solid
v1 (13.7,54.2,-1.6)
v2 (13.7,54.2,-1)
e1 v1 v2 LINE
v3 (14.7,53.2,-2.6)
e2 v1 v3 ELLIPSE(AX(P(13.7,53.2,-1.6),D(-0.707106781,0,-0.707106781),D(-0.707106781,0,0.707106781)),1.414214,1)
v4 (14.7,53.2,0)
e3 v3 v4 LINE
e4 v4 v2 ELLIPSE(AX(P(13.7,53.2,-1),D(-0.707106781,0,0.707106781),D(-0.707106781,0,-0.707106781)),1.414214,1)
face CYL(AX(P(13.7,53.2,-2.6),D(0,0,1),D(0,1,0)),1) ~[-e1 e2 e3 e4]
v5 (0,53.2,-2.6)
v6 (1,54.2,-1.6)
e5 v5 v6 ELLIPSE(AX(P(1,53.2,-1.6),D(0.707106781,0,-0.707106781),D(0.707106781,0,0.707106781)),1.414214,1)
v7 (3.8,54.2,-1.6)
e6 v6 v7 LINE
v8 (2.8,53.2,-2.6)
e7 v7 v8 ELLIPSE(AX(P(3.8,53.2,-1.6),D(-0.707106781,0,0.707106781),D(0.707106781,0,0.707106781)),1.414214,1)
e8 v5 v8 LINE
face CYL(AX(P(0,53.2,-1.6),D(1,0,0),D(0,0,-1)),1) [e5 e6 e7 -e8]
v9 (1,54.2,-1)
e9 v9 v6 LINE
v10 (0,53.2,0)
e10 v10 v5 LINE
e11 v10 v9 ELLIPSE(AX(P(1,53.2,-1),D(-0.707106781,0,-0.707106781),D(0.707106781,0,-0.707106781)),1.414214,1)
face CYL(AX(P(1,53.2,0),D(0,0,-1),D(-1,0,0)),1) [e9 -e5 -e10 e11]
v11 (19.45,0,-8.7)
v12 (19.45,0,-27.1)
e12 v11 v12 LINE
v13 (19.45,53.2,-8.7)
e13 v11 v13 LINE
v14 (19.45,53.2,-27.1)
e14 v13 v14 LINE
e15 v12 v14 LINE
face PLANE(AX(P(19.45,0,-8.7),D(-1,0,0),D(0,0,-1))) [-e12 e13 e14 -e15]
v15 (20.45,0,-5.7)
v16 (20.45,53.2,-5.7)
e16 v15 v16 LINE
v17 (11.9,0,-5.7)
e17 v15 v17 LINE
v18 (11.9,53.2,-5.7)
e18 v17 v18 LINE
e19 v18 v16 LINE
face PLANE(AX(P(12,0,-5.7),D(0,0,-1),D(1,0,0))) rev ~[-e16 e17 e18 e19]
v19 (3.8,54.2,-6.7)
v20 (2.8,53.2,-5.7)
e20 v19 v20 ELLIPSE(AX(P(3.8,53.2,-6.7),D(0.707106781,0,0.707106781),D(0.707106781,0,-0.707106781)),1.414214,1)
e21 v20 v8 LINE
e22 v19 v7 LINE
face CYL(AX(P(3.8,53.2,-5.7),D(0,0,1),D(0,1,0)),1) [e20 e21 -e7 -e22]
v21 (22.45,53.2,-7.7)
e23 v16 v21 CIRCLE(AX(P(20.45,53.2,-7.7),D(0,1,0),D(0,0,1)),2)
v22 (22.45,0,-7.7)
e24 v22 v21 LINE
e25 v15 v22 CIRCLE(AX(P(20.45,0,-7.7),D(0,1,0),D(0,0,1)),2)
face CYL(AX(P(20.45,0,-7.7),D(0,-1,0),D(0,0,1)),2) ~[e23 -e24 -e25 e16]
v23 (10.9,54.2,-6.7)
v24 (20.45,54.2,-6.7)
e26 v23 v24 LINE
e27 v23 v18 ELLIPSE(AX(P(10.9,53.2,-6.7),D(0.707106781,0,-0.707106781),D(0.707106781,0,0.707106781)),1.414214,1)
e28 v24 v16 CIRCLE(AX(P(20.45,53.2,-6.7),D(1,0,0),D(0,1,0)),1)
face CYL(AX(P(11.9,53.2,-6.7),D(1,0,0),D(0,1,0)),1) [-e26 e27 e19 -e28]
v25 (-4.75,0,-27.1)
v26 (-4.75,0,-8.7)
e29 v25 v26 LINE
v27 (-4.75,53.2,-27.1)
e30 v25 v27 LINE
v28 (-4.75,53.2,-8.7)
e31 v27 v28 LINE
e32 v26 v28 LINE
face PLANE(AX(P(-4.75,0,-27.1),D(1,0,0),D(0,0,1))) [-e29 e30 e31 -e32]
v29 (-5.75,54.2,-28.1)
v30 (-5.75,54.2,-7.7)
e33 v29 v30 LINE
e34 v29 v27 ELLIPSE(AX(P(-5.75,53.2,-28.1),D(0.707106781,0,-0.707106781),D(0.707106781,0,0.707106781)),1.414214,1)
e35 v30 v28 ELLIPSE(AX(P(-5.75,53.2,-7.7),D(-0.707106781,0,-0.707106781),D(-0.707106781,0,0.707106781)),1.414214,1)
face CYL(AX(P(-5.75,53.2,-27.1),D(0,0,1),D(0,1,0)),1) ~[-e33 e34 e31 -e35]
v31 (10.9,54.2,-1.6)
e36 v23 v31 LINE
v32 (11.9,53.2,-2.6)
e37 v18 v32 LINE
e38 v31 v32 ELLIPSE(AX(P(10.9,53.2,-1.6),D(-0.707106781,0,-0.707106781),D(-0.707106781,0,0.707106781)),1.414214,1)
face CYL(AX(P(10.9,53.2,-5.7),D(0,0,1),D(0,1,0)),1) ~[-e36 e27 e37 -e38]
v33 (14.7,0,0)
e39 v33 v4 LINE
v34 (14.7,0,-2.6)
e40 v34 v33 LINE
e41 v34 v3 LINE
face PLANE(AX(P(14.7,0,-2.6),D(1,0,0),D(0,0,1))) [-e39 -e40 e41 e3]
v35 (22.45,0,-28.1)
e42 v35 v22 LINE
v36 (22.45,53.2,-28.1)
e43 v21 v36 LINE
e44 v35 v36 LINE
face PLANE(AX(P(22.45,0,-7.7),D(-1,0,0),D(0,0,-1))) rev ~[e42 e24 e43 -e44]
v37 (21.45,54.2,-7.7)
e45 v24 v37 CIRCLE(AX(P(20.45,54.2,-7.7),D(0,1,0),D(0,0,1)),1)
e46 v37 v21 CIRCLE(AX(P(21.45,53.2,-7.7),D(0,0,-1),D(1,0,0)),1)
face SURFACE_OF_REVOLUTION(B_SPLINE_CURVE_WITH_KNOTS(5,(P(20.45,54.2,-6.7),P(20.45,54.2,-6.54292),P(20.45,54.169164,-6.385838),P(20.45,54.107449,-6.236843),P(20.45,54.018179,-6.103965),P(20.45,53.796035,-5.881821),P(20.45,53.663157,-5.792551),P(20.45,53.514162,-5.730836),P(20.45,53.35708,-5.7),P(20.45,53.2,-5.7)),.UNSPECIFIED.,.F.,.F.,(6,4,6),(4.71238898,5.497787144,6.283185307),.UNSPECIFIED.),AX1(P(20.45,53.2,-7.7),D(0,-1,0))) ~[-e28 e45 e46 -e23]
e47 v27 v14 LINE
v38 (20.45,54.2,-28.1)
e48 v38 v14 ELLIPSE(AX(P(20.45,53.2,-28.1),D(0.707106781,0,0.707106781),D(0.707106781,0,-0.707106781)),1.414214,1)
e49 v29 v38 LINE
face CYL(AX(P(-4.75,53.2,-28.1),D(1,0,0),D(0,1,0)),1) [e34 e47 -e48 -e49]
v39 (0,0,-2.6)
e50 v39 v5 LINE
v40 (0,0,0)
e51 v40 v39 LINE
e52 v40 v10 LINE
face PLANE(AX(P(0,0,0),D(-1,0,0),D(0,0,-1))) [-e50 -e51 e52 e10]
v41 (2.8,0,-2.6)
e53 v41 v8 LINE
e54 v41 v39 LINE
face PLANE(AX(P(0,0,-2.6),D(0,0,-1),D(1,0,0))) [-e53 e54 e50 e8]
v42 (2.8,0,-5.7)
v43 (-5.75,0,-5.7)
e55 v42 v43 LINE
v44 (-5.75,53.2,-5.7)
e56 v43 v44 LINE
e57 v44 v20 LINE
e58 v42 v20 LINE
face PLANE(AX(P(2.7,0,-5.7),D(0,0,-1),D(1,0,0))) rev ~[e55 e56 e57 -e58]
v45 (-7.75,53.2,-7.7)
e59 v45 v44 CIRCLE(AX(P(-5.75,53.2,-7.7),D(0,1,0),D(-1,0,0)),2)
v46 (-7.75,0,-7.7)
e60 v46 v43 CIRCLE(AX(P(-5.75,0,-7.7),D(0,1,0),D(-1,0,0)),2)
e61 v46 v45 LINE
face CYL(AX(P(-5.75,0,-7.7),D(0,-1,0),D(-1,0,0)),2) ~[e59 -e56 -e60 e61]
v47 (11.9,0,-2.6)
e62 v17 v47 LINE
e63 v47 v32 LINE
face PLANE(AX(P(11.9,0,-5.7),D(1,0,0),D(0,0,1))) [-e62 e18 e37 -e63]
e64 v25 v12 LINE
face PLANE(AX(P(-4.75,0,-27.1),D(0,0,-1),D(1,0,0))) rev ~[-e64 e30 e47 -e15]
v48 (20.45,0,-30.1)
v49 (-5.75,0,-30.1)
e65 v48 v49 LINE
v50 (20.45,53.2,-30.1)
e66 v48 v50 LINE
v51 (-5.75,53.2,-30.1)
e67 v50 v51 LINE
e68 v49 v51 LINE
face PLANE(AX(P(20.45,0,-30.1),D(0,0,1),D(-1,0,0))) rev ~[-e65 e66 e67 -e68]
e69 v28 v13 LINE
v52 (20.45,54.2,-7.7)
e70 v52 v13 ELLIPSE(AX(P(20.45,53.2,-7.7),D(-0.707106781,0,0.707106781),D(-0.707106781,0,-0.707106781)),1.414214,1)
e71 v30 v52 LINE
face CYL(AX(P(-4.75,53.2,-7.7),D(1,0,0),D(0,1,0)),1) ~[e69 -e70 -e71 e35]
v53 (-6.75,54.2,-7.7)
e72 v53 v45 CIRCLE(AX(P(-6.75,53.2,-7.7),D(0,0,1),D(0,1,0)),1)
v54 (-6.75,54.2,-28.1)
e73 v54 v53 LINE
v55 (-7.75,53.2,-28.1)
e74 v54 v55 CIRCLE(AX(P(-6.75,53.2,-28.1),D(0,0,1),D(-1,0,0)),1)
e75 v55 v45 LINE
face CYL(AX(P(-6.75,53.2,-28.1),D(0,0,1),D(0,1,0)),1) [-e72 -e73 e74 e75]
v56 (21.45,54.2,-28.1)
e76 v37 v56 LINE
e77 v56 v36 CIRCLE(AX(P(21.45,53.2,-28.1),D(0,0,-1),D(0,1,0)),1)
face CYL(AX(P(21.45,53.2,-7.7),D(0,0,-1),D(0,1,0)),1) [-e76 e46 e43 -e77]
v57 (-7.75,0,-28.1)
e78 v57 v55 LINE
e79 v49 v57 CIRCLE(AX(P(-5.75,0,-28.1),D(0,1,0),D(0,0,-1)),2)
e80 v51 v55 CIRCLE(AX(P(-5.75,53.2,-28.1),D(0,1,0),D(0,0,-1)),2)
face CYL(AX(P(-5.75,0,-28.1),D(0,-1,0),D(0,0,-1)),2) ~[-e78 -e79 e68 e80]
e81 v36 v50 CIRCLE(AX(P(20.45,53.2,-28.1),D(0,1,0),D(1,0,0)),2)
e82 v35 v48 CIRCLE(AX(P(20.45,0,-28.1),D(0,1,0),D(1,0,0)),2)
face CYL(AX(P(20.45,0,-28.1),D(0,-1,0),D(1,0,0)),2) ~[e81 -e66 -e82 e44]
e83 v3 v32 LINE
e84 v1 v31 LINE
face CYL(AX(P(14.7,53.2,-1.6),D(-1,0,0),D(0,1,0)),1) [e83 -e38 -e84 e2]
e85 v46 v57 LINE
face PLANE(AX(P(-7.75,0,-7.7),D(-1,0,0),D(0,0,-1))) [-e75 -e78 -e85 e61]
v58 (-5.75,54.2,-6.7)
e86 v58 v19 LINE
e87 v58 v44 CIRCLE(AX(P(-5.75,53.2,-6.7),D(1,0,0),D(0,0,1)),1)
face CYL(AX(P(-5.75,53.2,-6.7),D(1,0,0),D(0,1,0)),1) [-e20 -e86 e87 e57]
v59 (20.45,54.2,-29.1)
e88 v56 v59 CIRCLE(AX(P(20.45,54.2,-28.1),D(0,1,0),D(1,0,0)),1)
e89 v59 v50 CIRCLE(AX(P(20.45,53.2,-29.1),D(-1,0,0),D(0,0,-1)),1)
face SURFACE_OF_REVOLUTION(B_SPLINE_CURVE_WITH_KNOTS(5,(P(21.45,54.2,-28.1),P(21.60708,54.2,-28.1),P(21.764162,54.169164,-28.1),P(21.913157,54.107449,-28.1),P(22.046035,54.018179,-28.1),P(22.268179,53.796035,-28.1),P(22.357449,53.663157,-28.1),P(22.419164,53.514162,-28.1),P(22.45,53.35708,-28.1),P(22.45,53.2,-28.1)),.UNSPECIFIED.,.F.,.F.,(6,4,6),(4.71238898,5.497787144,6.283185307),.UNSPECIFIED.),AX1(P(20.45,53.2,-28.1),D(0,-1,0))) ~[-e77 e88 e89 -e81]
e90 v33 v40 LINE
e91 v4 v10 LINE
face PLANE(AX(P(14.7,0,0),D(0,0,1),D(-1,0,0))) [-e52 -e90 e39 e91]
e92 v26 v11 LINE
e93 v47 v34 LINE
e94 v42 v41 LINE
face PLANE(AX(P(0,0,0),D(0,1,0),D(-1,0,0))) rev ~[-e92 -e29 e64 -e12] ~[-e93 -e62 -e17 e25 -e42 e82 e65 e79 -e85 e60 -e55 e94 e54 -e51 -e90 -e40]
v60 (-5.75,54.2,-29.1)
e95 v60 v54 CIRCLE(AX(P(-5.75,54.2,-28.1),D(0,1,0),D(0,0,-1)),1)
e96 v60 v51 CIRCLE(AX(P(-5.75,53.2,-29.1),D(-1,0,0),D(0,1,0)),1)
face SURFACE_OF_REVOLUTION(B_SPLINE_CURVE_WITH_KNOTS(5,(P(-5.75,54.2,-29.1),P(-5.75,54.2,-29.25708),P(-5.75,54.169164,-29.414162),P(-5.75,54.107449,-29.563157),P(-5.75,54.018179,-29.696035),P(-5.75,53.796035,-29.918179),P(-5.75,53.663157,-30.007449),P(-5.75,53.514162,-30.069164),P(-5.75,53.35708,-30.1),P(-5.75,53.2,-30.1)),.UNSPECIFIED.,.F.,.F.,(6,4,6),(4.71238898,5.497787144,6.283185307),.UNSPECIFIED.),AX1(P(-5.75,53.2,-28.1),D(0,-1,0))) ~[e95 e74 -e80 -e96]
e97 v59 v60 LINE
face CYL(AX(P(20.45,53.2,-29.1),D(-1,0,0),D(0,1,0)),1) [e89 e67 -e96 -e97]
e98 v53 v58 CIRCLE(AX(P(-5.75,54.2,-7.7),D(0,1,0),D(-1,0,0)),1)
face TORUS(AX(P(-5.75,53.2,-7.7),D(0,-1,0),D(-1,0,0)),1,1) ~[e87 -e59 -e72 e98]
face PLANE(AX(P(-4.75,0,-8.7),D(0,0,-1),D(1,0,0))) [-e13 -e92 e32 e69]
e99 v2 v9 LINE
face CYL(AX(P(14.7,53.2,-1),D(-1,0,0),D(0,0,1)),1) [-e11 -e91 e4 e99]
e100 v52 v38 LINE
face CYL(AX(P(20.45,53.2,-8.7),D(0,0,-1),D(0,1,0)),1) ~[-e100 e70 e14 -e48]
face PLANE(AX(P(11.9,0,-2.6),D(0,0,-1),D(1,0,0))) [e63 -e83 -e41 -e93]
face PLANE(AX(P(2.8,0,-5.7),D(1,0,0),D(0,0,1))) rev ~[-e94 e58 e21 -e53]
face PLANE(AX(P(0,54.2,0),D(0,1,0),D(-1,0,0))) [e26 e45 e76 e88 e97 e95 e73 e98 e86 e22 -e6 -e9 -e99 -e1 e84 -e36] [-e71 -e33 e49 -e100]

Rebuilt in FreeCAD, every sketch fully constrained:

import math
import FreeCAD as App
import Part
import Sketcher
Q = App.Units.Quantity


def edges_at(feature, points):
    """Names of the edges that pass closest to the given points."""
    edges = feature.Shape.Edges
    near = lambda p: min(range(len(edges)), key=lambda i: edges[i].distToShape(Part.Vertex(*p))[0])
    return sorted({f"Edge{near(p) + 1}" for p in points})


def add_polygon(sketch, points):
    """Adds a closed chain of lines whose ends are joined by coincident constraints."""
    first, n = sketch.GeometryCount, len(points)
    for a, b in zip(points, points[1:] + points[:1]):
        sketch.addGeometry(Part.LineSegment(App.Vector(*a, 0), App.Vector(*b, 0)), False)
    for i in range(n):
        sketch.addConstraint(Sketcher.Constraint("Coincident", first + i, 2, first + (i + 1) % n, 1))

doc = App.newDocument("Part")
body = doc.addObject("PartDesign::Body", "Body")

# Sketch on XZ plane
sketch1 = body.newObject("Sketcher::SketchObject", "Sketch")
sketch1.AttachmentSupport = (doc.getObject("XZ_Plane"), [""])
sketch1.MapMode = "FlatFace"
sketch1.addGeometry(Part.LineSegment(App.Vector(0, -2.6, 0), App.Vector(0, 0, 0)), False)  # 0
sketch1.addGeometry(Part.LineSegment(App.Vector(0, 0, 0), App.Vector(14.7, 0, 0)), False)  # 1
sketch1.addGeometry(Part.LineSegment(App.Vector(14.7, 0, 0), App.Vector(14.7, -2.6, 0)), False)  # 2
sketch1.addGeometry(Part.LineSegment(App.Vector(14.7, -2.6, 0), App.Vector(11.9, -2.6, 0)), False)  # 3
sketch1.addGeometry(Part.LineSegment(App.Vector(11.9, -2.6, 0), App.Vector(11.9, -5.7, 0)), False)  # 4
sketch1.addGeometry(Part.LineSegment(App.Vector(11.9, -5.7, 0), App.Vector(20.4, -5.7, 0)), False)  # 5
sketch1.addGeometry(Part.ArcOfCircle(Part.Circle(App.Vector(20.4, -7.7, 0), App.Vector(0, 0, 1), 2), math.radians(0), math.radians(90)), False)  # 6
sketch1.addGeometry(Part.LineSegment(App.Vector(22.4, -7.7, 0), App.Vector(22.4, -28.1, 0)), False)  # 7
sketch1.addGeometry(Part.ArcOfCircle(Part.Circle(App.Vector(20.4, -28.1, 0), App.Vector(0, 0, 1), 2), math.radians(-90), math.radians(0)), False)  # 8
sketch1.addGeometry(Part.LineSegment(App.Vector(20.4, -30.1, 0), App.Vector(-5.8, -30.1, 0)), False)  # 9
sketch1.addGeometry(Part.ArcOfCircle(Part.Circle(App.Vector(-5.8, -28.1, 0), App.Vector(0, 0, 1), 2), math.radians(180), math.radians(270)), False)  # 10
sketch1.addGeometry(Part.LineSegment(App.Vector(-7.8, -28.1, 0), App.Vector(-7.8, -7.7, 0)), False)  # 11
sketch1.addGeometry(Part.ArcOfCircle(Part.Circle(App.Vector(-5.8, -7.7, 0), App.Vector(0, 0, 1), 2), math.radians(90), math.radians(180)), False)  # 12
sketch1.addGeometry(Part.LineSegment(App.Vector(-5.8, -5.7, 0), App.Vector(2.8, -5.7, 0)), False)  # 13
sketch1.addGeometry(Part.LineSegment(App.Vector(2.8, -5.7, 0), App.Vector(2.8, -2.6, 0)), False)  # 14
sketch1.addGeometry(Part.LineSegment(App.Vector(2.8, -2.6, 0), App.Vector(0, -2.6, 0)), False)  # 15
add_polygon(sketch1, [(19.4, -8.7), (-4.8, -8.7), (-4.8, -27.1), (19.4, -27.1)])  # lines 16-19
sketch1.addConstraint(Sketcher.Constraint("Coincident", 0, 2, 1, 1))
sketch1.addConstraint(Sketcher.Constraint("Coincident", 1, 2, 2, 1))
sketch1.addConstraint(Sketcher.Constraint("Coincident", 2, 2, 3, 1))
sketch1.addConstraint(Sketcher.Constraint("Coincident", 3, 2, 4, 1))
sketch1.addConstraint(Sketcher.Constraint("Coincident", 4, 2, 5, 1))
sketch1.addConstraint(Sketcher.Constraint("Tangent", 5, 2, 6, 2))
sketch1.addConstraint(Sketcher.Constraint("Tangent", 6, 1, 7, 1))
sketch1.addConstraint(Sketcher.Constraint("Tangent", 7, 2, 8, 2))
sketch1.addConstraint(Sketcher.Constraint("Tangent", 8, 1, 9, 1))
sketch1.addConstraint(Sketcher.Constraint("Tangent", 9, 2, 10, 2))
sketch1.addConstraint(Sketcher.Constraint("Tangent", 10, 1, 11, 1))
sketch1.addConstraint(Sketcher.Constraint("Tangent", 11, 2, 12, 2))
sketch1.addConstraint(Sketcher.Constraint("Tangent", 12, 1, 13, 1))
sketch1.addConstraint(Sketcher.Constraint("Coincident", 13, 2, 14, 1))
sketch1.addConstraint(Sketcher.Constraint("Coincident", 14, 2, 15, 1))
sketch1.addConstraint(Sketcher.Constraint("Coincident", 15, 2, 0, 1))
sketch1.addConstraint(Sketcher.Constraint("Vertical", 0))
sketch1.addConstraint(Sketcher.Constraint("Horizontal", 1))
sketch1.addConstraint(Sketcher.Constraint("Vertical", 2))
sketch1.addConstraint(Sketcher.Constraint("Horizontal", 3))
sketch1.addConstraint(Sketcher.Constraint("Vertical", 4))
sketch1.addConstraint(Sketcher.Constraint("Horizontal", 5))
sketch1.addConstraint(Sketcher.Constraint("Vertical", 7))
sketch1.addConstraint(Sketcher.Constraint("Horizontal", 9))
sketch1.addConstraint(Sketcher.Constraint("Vertical", 11))
sketch1.addConstraint(Sketcher.Constraint("Horizontal", 13))
sketch1.addConstraint(Sketcher.Constraint("Vertical", 14))
sketch1.addConstraint(Sketcher.Constraint("Horizontal", 15))
sketch1.addConstraint(Sketcher.Constraint("Horizontal", 16))
sketch1.addConstraint(Sketcher.Constraint("Vertical", 17))
sketch1.addConstraint(Sketcher.Constraint("Horizontal", 18))
sketch1.addConstraint(Sketcher.Constraint("Vertical", 19))
sketch1.addConstraint(Sketcher.Constraint("Coincident", 0, 2, -1, 1))
sketch1.addConstraint(Sketcher.Constraint("Equal", 6, 8))
sketch1.addConstraint(Sketcher.Constraint("Equal", 8, 10))
sketch1.addConstraint(Sketcher.Constraint("Equal", 10, 12))
sketch1.addConstraint(Sketcher.Constraint("Horizontal", 6, 3, 12, 3))
sketch1.addConstraint(Sketcher.Constraint("Horizontal", 3, 2, 14, 2))
sketch1.addConstraint(Sketcher.Constraint("Equal", 5, 13))
sketch1.addConstraint(Sketcher.Constraint("Equal", 3, 15))
sketch1.addConstraint(Sketcher.Constraint("Radius", 6, Q("2 mm")))
sketch1.addConstraint(Sketcher.Constraint("DistanceY", 0, 1, 0, 2, Q("2.6 mm")))
sketch1.addConstraint(Sketcher.Constraint("DistanceY", 4, 2, 4, 1, Q("3.1 mm")))
sketch1.addConstraint(Sketcher.Constraint("DistanceY", 17, 2, 17, 1, Q("18.4 mm")))
sketch1.addConstraint(Sketcher.Constraint("DistanceY", 16, 2, 12, 1, Q("3 mm")))
sketch1.addConstraint(Sketcher.Constraint("DistanceX", 11, 2, 16, 2, Q("3 mm")))
sketch1.addConstraint(Sketcher.Constraint("DistanceY", 9, 2, 17, 2, Q("3 mm")))
sketch1.addConstraint(Sketcher.Constraint("DistanceX", 18, 2, 7, 2, Q("3 mm")))
sketch1.addConstraint(Sketcher.Constraint("DistanceX", 1, 1, 1, 2, Q("14.7 mm")))
sketch1.addConstraint(Sketcher.Constraint("DistanceX", 3, 2, 3, 1, Q("2.8 mm")))
sketch1.addConstraint(Sketcher.Constraint("DistanceX", 9, 2, 9, 1, Q("26.2 mm")))
pad1 = body.newObject("PartDesign::Pad", "Pad")
pad1.Profile = sketch1
pad1.Length = 54.2
pad1.Reversed = True
doc.recompute()

fillet = body.newObject("PartDesign::Fillet", "Fillet")
fillet.Base = (pad1, edges_at(pad1, [
    (-4.75, 54.2, -17.9),
    (-7.164, 54.2, -29.514),
    (-7.75, 54.2, -8.2),
    (-7.164, 54.2, -6.286),
    (2.75, 54.2, -5.7),
    (21.864, 54.2, -29.514),
    (22.45, 54.2, -8.2),
    (21.864, 54.2, -6.286),
    (11.95, 54.2, -5.7),
    (7.35, 54.2, -30.1),
    (7.35, 54.2, -27.1),
    (19.45, 54.2, -17.9),
    (7.35, 54.2, -8.7),
    (11.9, 54.2, -4.15),
    (2.8, 54.2, -4.15),
    (1.35, 54.2, -2.6),
    (0, 54.2, -1.3),
    (7.35, 54.2, 0),
    (14.7, 54.2, -1.3),
    (13.35, 54.2, -2.6),
]))
fillet.Radius = 1

doc.recompute()
